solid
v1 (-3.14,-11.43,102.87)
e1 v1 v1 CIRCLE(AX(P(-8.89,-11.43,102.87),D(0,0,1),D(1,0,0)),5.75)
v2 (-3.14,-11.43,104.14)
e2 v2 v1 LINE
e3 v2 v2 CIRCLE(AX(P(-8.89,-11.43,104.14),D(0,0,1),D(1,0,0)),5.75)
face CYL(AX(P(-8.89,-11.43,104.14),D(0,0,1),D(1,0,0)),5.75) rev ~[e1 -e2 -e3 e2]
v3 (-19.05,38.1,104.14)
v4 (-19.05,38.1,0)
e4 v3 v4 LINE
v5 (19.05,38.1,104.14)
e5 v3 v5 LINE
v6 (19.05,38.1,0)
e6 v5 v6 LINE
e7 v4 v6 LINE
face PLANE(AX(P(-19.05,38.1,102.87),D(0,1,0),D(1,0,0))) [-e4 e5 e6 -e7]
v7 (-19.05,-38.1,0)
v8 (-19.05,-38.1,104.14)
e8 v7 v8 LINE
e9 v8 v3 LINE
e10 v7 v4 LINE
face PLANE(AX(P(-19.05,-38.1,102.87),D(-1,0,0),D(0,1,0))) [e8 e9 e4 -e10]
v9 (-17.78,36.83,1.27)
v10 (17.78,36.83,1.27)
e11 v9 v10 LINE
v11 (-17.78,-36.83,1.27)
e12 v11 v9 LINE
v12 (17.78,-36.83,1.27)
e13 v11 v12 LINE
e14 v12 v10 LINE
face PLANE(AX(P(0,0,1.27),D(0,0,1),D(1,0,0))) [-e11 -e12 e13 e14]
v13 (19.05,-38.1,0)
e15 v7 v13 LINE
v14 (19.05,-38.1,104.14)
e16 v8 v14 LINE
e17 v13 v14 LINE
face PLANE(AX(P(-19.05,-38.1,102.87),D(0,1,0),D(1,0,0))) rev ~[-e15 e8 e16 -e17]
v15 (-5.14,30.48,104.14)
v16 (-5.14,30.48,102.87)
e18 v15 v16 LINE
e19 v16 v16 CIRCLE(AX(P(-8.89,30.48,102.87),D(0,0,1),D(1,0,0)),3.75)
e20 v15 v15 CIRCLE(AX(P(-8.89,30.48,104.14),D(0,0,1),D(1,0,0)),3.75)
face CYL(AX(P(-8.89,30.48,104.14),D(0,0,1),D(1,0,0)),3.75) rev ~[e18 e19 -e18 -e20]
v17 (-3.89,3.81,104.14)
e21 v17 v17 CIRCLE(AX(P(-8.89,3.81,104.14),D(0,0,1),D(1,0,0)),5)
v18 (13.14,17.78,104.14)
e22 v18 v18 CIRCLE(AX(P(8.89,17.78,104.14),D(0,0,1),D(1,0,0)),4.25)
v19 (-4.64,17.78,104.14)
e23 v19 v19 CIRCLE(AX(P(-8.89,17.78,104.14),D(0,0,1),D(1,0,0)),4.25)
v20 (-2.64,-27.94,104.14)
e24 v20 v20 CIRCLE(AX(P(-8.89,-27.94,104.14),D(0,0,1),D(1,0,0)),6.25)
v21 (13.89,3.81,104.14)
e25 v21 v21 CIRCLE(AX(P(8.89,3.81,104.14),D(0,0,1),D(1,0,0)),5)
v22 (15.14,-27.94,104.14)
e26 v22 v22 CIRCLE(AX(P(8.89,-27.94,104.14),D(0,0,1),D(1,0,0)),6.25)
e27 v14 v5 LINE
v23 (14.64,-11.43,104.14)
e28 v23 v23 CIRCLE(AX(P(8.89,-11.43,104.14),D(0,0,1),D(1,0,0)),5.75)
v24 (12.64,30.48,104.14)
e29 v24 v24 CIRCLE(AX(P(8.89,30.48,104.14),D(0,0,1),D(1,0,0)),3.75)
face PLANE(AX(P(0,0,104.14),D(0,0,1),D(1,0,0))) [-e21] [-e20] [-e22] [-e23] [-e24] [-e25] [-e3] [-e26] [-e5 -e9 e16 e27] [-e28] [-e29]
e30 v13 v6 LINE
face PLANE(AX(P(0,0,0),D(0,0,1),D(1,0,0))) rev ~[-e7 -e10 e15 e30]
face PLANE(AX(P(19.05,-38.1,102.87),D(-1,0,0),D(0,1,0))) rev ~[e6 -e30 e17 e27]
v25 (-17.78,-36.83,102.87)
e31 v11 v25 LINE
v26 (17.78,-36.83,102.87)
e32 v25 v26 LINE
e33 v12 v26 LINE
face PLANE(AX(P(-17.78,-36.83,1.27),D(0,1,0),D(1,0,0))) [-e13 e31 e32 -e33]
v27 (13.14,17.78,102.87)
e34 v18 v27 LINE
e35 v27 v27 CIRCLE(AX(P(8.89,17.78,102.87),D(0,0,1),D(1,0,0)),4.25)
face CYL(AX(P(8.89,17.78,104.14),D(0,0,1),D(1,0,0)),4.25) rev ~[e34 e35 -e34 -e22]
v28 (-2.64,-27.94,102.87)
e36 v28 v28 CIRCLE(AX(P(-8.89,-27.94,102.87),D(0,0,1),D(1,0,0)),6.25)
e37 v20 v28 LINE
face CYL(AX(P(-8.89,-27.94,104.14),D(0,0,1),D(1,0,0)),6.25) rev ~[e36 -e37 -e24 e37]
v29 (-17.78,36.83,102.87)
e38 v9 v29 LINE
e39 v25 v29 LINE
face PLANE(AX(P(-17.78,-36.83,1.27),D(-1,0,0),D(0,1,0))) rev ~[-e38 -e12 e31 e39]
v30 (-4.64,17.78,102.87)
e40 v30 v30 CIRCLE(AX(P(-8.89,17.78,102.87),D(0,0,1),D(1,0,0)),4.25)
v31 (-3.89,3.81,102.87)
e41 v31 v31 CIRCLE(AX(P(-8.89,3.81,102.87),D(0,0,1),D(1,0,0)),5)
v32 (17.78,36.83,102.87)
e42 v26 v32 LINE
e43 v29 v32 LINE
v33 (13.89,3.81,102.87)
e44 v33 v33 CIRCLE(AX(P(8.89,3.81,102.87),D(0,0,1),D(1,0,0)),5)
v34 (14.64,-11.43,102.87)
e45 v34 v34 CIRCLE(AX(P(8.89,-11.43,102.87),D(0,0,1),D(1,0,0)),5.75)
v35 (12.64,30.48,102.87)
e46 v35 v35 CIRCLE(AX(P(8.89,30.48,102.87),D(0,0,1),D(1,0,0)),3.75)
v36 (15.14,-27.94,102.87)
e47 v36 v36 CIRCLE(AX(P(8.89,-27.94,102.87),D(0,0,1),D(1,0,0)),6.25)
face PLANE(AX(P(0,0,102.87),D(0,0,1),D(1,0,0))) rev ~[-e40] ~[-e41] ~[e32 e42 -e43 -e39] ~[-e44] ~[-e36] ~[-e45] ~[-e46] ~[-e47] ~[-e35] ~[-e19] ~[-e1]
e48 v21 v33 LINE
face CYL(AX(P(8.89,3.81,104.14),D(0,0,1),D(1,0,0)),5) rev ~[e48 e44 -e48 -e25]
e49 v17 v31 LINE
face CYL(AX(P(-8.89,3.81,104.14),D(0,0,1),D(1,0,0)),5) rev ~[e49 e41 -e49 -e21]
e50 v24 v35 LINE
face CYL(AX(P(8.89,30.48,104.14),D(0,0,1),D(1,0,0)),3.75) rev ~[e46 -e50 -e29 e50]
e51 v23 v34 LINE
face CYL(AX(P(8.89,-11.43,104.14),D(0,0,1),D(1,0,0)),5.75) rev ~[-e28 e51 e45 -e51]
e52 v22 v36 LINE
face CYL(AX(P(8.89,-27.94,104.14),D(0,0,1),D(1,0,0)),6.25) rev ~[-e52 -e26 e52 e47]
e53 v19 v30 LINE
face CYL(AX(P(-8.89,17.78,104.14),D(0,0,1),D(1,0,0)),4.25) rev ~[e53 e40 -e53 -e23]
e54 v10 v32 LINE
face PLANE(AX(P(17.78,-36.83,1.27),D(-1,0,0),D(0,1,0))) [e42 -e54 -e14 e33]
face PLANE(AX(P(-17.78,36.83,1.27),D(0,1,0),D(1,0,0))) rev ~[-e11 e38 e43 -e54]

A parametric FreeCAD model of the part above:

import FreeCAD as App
import Part
import Sketcher

V = App.Vector
Q = App.Units.Quantity


def add_polygon(sketch, points):
    """Adds a closed chain of lines whose ends are joined by coincident constraints."""
    first, n = sketch.GeometryCount, len(points)
    for a, b in zip(points, points[1:] + points[:1]):
        sketch.addGeometry(Part.LineSegment(App.Vector(*a, 0), App.Vector(*b, 0)), False)
    for i in range(n):
        sketch.addConstraint(Sketcher.Constraint("Coincident", first + i, 2, first + (i + 1) % n, 1))

doc = App.newDocument("Part")
body = doc.addObject("PartDesign::Body", "Body")

# Sketch on XY plane
sketch1 = body.newObject("Sketcher::SketchObject", "Sketch")
sketch1.AttachmentSupport = (doc.getObject("XY_Plane"), [""])
sketch1.MapMode = "FlatFace"
add_polygon(sketch1, [(-19, 38), (-19, -38), (19, -38), (19, 38)])  # lines 0-3
sketch1.addConstraint([
    Sketcher.Constraint("Vertical", 0),
    Sketcher.Constraint("Horizontal", 1),
    Sketcher.Constraint("Vertical", 2),
    Sketcher.Constraint("Horizontal", 3),
    Sketcher.Constraint("Symmetric", 0, 2, 2, 2, -1, 1),
    Sketcher.Constraint("DistanceY", 0, 2, 0, 1, Q("3 in")),
    Sketcher.Constraint("DistanceX", 1, 1, 1, 2, Q("1.5 in")),
])
pad1 = body.newObject("PartDesign::Pad", "Pad")
pad1.Profile = sketch1
pad1.Length = Q("0.05 in")

# Sketch on XY plane
sketch2 = body.newObject("Sketcher::SketchObject", "Sketch001")
sketch2.AttachmentSupport = (doc.getObject("XY_Plane"), [""])
sketch2.MapMode = "FlatFace"
sketch2.AttachmentOffset = App.Placement(V(0, 0, 0.05 * 25.4), App.Rotation())
add_polygon(sketch2, [(-19, -38), (19, -38), (19, 38), (-19, 38)])  # lines 0-3
add_polygon(sketch2, [(18, -37), (-18, -37), (-18, 37), (18, 37)])  # lines 4-7
sketch2.addConstraint([
    Sketcher.Constraint("Horizontal", 0),
    Sketcher.Constraint("Vertical", 1),
    Sketcher.Constraint("Horizontal", 2),
    Sketcher.Constraint("Vertical", 3),
    Sketcher.Constraint("Horizontal", 4),
    Sketcher.Constraint("Vertical", 5),
    Sketcher.Constraint("Horizontal", 6),
    Sketcher.Constraint("Vertical", 7),
    Sketcher.Constraint("Symmetric", 0, 2, 2, 2, -1, 1),
    Sketcher.Constraint("Symmetric", 4, 2, 6, 2, -1, 1),
    Sketcher.Constraint("DistanceY", 1, 1, 1, 2, Q("3 in")),
    Sketcher.Constraint("DistanceX", 0, 1, 0, 2, Q("1.5 in")),
    Sketcher.Constraint("DistanceX", 4, 2, 4, 1, Q("1.4 in")),
    Sketcher.Constraint("DistanceY", 5, 1, 5, 2, Q("2.9 in")),
])
pad2 = body.newObject("PartDesign::Pad", "Pad001")
pad2.Profile = sketch2
pad2.Length = Q("4 in")

# Sketch on XY plane
sketch3 = body.newObject("Sketcher::SketchObject", "Sketch002")
sketch3.AttachmentSupport = (doc.getObject("XY_Plane"), [""])
sketch3.MapMode = "FlatFace"
sketch3.AttachmentOffset = App.Placement(V(0, 0, 4.05 * 25.4), App.Rotation())
add_polygon(sketch3, [(-19, 38), (-19, -38), (19, -38), (19, 38)])  # lines 0-3
sketch3.addConstraint([
    Sketcher.Constraint("Vertical", 0),
    Sketcher.Constraint("Horizontal", 1),
    Sketcher.Constraint("Vertical", 2),
    Sketcher.Constraint("Horizontal", 3),
    Sketcher.Constraint("Symmetric", 0, 2, 2, 2, -1, 1),
    Sketcher.Constraint("DistanceY", 0, 2, 0, 1, Q("3 in")),
    Sketcher.Constraint("DistanceX", 1, 1, 1, 2, Q("1.5 in")),
])
pad3 = body.newObject("PartDesign::Pad", "Pad002")
pad3.Profile = sketch3
pad3.Length = Q("0.05 in")

# Sketch on XY plane
sketch4 = body.newObject("Sketcher::SketchObject", "Sketch003")
sketch4.AttachmentSupport = (doc.getObject("XY_Plane"), [""])
sketch4.MapMode = "FlatFace"
sketch4.AttachmentOffset = App.Placement(V(0, 0, 4.1 * 25.4), App.Rotation())
sketch4.addGeometry([
    Part.Circle(V(-8.9, 30.5, 0), V(0, 0, 1), 3.8),  # 0
    Part.Circle(V(8.9, 30.5, 0), V(0, 0, 1), 3.8),  # 1
    Part.Circle(V(-8.9, 17.8, 0), V(0, 0, 1), 4.2),  # 2
    Part.Circle(V(8.9, 17.8, 0), V(0, 0, 1), 4.2),  # 3
    Part.Circle(V(8.9, 3.8, 0), V(0, 0, 1), 5),  # 4
    Part.Circle(V(-8.9, 3.8, 0), V(0, 0, 1), 5),  # 5
    Part.Circle(V(-8.9, -11.4, 0), V(0, 0, 1), 5.8),  # 6
    Part.Circle(V(8.9, -11.4, 0), V(0, 0, 1), 5.8),  # 7
    Part.Circle(V(8.9, -27.9, 0), V(0, 0, 1), 6.2),  # 8
    Part.Circle(V(-8.9, -27.9, 0), V(0, 0, 1), 6.2),  # 9
], False)
sketch4.addConstraint([
    Sketcher.Constraint("Equal", 0, 1),
    Sketcher.Constraint("Equal", 2, 3),
    Sketcher.Constraint("Equal", 4, 5),
    Sketcher.Constraint("Equal", 6, 7),
    Sketcher.Constraint("Equal", 8, 9),
    Sketcher.Constraint("Symmetric", 0, 3, 1, 3, -2),
    Sketcher.Constraint("Symmetric", 2, 3, 3, 3, -2),
    Sketcher.Constraint("Symmetric", 4, 3, 5, 3, -2),
    Sketcher.Constraint("Symmetric", 6, 3, 7, 3, -2),
    Sketcher.Constraint("Symmetric", 8, 3, 9, 3, -2),
    Sketcher.Constraint("Vertical", 0, 3, 2, 3),
    Sketcher.Constraint("Vertical", 3, 3, 4, 3),
    Sketcher.Constraint("Vertical", 5, 3, 6, 3),
    Sketcher.Constraint("Vertical", 7, 3, 8, 3),
    Sketcher.Constraint("DistanceY", -1, 1, 0, 3, Q("1.2 in")),
    Sketcher.Constraint("DistanceY", -1, 1, 2, 3, Q("0.7 in")),
    Sketcher.Constraint("DistanceY", 8, 3, -1, 1, Q("1.1 in")),
    Sketcher.Constraint("DistanceX", 0, 3, 1, 3, Q("0.7 in")),
    Sketcher.Constraint("DistanceY", 6, 3, 5, 3, Q("0.6 in")),
    Sketcher.Constraint("Diameter", 0, 7.5),
    Sketcher.Constraint("Diameter", 2, 8.5),
    Sketcher.Constraint("Diameter", 4, 10.0),
    Sketcher.Constraint("Diameter", 6, 11.5),
    Sketcher.Constraint("Diameter", 8, 12.5),
    Sketcher.Constraint("DistanceY", -1, 1, 4, 3, Q("0.15 in")),
])
pocket1 = body.newObject("PartDesign::Pocket", "Pocket")
pocket1.Profile = sketch4
pocket1.Length = Q("1 in")

doc.recompute()
